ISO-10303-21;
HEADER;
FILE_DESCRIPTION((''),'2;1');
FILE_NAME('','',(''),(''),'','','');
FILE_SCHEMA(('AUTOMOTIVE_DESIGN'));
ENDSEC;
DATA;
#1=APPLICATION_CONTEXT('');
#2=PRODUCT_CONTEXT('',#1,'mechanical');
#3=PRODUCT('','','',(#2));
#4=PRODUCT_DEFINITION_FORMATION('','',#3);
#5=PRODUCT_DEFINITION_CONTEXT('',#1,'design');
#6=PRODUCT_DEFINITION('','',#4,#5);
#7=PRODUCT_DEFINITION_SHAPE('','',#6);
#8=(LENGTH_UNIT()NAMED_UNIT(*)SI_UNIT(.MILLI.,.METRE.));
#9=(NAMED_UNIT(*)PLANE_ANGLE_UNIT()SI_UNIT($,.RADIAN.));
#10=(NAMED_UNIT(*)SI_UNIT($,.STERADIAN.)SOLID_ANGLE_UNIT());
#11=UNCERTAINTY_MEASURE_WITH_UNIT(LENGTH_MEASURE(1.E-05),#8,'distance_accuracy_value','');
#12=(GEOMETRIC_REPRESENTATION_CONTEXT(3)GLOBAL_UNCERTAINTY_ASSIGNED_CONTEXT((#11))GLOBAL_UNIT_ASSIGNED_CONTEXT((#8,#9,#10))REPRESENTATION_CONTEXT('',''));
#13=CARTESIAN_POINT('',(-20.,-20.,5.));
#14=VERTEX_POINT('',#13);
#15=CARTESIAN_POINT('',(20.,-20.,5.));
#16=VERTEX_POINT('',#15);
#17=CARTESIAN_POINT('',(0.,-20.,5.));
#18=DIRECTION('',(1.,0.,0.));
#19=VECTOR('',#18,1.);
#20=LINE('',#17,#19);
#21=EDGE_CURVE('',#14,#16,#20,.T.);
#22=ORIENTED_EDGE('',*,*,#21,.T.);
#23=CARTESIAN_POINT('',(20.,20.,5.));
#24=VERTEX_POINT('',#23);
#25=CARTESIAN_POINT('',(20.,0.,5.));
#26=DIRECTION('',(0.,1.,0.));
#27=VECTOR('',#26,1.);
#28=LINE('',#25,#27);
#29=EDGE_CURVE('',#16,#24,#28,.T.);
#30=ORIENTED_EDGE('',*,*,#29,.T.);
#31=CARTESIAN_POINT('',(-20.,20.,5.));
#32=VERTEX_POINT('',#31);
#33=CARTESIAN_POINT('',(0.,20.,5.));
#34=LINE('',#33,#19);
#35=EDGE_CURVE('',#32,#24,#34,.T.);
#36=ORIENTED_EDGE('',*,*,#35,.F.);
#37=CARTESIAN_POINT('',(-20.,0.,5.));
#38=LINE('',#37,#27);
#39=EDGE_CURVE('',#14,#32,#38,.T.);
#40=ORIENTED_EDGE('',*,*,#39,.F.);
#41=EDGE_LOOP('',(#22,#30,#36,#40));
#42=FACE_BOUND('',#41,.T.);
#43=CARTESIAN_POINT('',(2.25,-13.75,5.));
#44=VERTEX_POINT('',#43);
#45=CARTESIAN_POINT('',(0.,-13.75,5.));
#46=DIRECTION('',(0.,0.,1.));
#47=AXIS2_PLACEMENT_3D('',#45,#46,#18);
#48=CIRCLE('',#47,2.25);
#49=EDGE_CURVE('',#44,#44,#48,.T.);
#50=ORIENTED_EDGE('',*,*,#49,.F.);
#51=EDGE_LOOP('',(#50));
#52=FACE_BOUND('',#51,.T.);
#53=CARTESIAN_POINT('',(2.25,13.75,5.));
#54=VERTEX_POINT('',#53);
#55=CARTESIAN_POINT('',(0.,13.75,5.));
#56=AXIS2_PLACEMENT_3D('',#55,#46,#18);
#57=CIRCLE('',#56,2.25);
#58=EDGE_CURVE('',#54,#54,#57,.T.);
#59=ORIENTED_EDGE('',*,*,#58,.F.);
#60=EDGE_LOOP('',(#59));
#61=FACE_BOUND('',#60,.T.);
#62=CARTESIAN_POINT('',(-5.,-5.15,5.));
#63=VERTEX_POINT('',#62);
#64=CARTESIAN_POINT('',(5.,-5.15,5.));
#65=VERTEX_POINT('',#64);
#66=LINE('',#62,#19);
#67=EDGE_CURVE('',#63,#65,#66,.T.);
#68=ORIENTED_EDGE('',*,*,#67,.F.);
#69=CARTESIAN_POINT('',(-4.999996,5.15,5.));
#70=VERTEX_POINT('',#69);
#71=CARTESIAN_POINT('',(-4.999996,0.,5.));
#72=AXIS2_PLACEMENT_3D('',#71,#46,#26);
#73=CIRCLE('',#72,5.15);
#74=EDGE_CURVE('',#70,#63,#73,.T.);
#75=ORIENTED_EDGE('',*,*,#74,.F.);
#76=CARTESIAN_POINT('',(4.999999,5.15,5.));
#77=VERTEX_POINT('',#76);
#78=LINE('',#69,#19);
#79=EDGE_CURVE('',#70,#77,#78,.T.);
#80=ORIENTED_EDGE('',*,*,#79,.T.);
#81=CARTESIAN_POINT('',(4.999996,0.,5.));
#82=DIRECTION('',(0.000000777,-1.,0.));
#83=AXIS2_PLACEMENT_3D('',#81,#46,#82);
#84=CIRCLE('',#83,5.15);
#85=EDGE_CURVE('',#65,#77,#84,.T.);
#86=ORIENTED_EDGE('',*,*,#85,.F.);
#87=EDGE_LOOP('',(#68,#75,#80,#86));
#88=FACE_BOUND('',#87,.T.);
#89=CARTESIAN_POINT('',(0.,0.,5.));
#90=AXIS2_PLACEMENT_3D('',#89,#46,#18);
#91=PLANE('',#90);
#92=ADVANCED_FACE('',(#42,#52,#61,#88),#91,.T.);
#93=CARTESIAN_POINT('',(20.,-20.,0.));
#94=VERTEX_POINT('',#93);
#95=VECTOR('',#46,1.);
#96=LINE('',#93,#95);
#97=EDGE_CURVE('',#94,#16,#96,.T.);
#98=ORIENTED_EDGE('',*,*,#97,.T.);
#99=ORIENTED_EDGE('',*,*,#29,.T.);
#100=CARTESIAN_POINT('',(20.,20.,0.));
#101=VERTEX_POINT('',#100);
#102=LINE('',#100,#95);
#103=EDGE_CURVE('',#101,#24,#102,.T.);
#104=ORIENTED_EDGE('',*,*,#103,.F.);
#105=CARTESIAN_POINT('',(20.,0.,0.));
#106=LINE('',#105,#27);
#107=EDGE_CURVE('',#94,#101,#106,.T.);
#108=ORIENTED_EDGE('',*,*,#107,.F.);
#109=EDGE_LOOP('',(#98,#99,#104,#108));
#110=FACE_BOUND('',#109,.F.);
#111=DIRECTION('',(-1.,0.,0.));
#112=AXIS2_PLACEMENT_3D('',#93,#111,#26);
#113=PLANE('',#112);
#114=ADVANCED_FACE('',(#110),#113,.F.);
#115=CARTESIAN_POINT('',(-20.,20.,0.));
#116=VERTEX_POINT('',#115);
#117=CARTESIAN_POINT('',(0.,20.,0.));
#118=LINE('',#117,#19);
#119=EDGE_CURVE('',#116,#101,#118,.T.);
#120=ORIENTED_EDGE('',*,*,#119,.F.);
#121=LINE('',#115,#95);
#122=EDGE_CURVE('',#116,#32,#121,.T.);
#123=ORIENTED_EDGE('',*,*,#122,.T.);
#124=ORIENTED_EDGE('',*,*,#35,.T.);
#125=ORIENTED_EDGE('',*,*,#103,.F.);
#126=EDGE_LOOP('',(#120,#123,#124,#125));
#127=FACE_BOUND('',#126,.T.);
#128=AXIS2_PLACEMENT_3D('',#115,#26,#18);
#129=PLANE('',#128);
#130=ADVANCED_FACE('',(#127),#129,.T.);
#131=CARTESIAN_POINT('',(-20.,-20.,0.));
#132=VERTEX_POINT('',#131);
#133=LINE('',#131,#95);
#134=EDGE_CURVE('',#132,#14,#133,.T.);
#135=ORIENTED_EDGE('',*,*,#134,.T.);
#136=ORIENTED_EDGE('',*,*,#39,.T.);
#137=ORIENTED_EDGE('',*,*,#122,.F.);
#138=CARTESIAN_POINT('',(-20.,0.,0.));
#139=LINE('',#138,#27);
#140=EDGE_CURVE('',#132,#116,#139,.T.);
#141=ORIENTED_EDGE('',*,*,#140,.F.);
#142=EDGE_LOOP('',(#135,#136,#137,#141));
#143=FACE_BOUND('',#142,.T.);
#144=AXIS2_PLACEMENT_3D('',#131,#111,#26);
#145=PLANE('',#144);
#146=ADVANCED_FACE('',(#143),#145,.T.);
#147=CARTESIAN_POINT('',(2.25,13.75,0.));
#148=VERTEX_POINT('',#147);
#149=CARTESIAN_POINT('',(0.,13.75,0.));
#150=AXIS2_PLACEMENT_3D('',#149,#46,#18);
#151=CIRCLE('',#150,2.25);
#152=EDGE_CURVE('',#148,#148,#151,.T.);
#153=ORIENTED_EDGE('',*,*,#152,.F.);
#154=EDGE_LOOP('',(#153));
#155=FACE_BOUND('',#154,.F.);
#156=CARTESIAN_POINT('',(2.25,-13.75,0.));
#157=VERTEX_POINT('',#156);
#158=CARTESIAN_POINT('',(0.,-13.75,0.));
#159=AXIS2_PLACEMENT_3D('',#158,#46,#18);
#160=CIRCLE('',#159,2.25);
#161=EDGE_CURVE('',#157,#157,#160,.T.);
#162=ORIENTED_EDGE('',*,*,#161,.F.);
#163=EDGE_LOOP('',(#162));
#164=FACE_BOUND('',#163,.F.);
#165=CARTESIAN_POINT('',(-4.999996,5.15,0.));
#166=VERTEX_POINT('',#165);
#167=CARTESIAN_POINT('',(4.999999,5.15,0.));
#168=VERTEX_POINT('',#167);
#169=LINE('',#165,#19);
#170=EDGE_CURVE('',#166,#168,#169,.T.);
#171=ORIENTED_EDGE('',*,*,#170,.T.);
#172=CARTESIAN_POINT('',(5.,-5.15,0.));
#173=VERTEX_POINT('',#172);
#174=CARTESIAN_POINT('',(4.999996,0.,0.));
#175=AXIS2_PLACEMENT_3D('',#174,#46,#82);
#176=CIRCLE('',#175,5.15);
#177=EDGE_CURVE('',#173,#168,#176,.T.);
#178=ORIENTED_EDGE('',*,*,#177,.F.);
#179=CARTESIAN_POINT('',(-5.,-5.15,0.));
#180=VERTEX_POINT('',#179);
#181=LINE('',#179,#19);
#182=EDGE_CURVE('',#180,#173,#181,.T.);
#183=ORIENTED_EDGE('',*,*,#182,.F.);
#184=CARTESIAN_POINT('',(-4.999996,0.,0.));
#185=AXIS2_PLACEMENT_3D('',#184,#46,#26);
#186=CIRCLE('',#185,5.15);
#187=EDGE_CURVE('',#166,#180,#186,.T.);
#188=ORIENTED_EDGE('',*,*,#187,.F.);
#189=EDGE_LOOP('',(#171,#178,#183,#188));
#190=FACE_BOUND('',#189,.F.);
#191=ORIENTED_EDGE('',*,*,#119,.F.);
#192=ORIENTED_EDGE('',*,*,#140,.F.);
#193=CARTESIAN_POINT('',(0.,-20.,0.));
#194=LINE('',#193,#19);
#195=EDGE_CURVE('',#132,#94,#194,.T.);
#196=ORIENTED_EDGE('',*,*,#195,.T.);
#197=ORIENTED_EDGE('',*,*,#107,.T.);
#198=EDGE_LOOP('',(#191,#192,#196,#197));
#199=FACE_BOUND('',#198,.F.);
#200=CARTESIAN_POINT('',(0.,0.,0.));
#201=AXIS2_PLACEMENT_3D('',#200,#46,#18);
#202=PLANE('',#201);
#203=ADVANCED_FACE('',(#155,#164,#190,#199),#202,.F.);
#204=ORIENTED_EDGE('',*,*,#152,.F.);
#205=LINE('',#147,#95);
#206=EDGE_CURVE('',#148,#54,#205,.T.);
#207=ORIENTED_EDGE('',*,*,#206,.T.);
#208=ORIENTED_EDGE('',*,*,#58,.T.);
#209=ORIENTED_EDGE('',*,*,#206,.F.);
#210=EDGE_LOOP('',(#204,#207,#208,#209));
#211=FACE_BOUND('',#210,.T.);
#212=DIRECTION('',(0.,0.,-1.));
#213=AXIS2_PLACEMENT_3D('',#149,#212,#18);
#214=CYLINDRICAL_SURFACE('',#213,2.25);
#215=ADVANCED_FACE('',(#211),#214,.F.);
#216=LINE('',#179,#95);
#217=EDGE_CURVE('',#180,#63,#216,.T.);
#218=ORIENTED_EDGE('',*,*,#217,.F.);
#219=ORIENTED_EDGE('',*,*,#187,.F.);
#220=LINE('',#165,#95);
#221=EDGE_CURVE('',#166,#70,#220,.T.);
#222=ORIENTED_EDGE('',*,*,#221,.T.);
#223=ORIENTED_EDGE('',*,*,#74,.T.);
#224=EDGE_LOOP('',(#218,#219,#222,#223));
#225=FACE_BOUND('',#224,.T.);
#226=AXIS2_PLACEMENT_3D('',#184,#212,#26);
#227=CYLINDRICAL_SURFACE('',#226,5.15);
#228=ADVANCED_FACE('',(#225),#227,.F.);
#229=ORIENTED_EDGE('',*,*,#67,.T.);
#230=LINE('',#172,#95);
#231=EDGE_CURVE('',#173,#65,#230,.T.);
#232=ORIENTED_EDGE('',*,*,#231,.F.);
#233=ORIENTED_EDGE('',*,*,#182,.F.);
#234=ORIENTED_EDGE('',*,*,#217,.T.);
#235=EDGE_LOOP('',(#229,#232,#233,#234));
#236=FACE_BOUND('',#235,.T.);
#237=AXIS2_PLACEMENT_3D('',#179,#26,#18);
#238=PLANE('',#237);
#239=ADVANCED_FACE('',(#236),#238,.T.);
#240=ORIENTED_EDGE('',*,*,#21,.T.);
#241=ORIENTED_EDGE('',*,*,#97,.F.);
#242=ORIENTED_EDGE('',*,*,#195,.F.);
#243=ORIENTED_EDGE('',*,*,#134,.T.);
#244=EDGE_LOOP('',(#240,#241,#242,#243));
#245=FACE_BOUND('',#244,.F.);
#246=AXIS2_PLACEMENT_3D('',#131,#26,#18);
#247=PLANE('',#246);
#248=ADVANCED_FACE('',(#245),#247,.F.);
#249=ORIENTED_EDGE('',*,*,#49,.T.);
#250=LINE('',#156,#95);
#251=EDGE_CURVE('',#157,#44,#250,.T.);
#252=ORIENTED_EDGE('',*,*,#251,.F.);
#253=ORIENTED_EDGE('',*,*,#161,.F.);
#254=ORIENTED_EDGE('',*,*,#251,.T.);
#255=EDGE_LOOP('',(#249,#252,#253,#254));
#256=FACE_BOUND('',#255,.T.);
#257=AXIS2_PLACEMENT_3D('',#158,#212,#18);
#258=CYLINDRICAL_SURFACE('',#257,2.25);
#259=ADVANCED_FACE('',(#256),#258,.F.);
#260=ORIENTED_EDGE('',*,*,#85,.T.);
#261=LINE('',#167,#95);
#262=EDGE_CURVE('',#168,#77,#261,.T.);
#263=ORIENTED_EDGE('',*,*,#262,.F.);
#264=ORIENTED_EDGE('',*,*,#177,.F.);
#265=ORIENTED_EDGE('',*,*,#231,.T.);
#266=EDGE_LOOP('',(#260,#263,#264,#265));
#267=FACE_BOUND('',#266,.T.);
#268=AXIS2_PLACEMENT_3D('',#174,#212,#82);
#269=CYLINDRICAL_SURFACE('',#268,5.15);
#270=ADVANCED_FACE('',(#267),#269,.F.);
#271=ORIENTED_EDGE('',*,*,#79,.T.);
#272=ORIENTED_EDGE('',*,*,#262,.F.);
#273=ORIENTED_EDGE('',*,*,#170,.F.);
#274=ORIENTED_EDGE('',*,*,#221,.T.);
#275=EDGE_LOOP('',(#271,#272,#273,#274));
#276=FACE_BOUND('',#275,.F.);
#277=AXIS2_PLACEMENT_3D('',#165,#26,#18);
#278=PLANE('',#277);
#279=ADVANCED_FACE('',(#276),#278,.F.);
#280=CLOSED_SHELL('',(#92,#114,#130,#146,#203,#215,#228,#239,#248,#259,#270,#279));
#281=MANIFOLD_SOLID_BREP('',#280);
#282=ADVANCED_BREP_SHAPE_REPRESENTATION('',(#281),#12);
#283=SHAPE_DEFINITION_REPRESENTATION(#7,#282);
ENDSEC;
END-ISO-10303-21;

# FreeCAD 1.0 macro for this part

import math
import FreeCAD as App
import Part
import Sketcher

doc = App.newDocument("Part")
params = doc.addObject("Spreadsheet::Sheet", "Params")
for row, (alias, value) in enumerate([
    ("sketch1_diameter", "4.5 mm"),
    ("sketch1_width", "40 mm"),
    ("sketch1_width2", "10 mm"),
    ("sketch1_radius", "5.15 mm"),
    ("pad1_length", "5 mm"),
], start=1):
    params.set(f"A{row}", alias)
    params.set(f"B{row}", "=" + value)
    params.setAlias(f"B{row}", alias)

body = doc.addObject("PartDesign::Body", "Body")

sketch1 = doc.addObject("Sketcher::SketchObject", "Sketch")
body.addObject(sketch1)
sketch1.AttachmentSupport = (doc.XY_Plane, [""])
sketch1.MapMode = "FlatFace"
sketch1.addGeometry([
    Part.LineSegment(App.Vector(-20, 20, 0), App.Vector(-20, -20, 0)),
    Part.LineSegment(App.Vector(-20, -20, 0), App.Vector(20, -20, 0)),
    Part.LineSegment(App.Vector(20, -20, 0), App.Vector(20, 20, 0)),
    Part.LineSegment(App.Vector(20, 20, 0), App.Vector(-20, 20, 0)),
    Part.Circle(App.Vector(0, -13.8, 0), App.Vector(0, 0, 1), 2.2),
    Part.ArcOfCircle(Part.Circle(App.Vector(-5, 0, 0), App.Vector(0, 0, 1), 5.2), math.radians(90), math.radians(270)),
    Part.LineSegment(App.Vector(-5, 5.2, 0), App.Vector(5, 5.2, 0)),
    Part.ArcOfCircle(Part.Circle(App.Vector(5, 0, 0), App.Vector(0, 0, 1), 5.2), math.radians(-90), math.radians(90)),
    Part.LineSegment(App.Vector(5, -5.2, 0), App.Vector(-5, -5.2, 0)),
    Part.Circle(App.Vector(0, 13.8, 0), App.Vector(0, 0, 1), 2.2),
], False)
sketch1.addConstraint([
    Sketcher.Constraint("Coincident", 0, 2, 1, 1),
    Sketcher.Constraint("Coincident", 1, 2, 2, 1),
    Sketcher.Constraint("Coincident", 2, 2, 3, 1),
    Sketcher.Constraint("Coincident", 3, 2, 0, 1),
    Sketcher.Constraint("Tangent", 5, 1, 6, 1),
    Sketcher.Constraint("Tangent", 6, 2, 7, 2),
    Sketcher.Constraint("Tangent", 7, 1, 8, 1),
    Sketcher.Constraint("Tangent", 8, 2, 5, 2),
    Sketcher.Constraint("Vertical", 0),
    Sketcher.Constraint("Horizontal", 1),
    Sketcher.Constraint("Vertical", 2),
    Sketcher.Constraint("Horizontal", 3),
    Sketcher.Constraint("Horizontal", 6),
    Sketcher.Constraint("Horizontal", 8),
    Sketcher.Constraint("Equal", 4, 9),
    Sketcher.Constraint("Symmetric", 5, 3, 7, 3, -1, 1),
    Sketcher.Constraint("Symmetric", 4, 3, 9, 3, -1, 1),
    Sketcher.Constraint("Symmetric", 0, 2, 2, 2, -1, 1),
    Sketcher.Constraint("PointOnObject", 4, 3, -2),
    Sketcher.Constraint("Equal", 3, 0),
    Sketcher.Constraint("Diameter", 4, 4.5),
    Sketcher.Constraint("DistanceX", 1, 1, 1, 2, 40.0),
    Sketcher.Constraint("DistanceX", 8, 2, 8, 1, 10.0),
    Sketcher.Constraint("Radius", 5, 5.15),
    Sketcher.Constraint("DistanceY", 4, 3, 9, 3, 27.5),
])
sketch1.setExpression("Constraints[20]", "Params.sketch1_diameter")
sketch1.setExpression("Constraints[21]", "Params.sketch1_width")
sketch1.setExpression("Constraints[22]", "Params.sketch1_width2")
sketch1.setExpression("Constraints[23]", "Params.sketch1_radius")
pad1 = doc.addObject("PartDesign::Pad", "Pad")
body.addObject(pad1)
pad1.Profile = sketch1
pad1.setExpression("Length", "Params.pad1_length")

doc.recompute()
